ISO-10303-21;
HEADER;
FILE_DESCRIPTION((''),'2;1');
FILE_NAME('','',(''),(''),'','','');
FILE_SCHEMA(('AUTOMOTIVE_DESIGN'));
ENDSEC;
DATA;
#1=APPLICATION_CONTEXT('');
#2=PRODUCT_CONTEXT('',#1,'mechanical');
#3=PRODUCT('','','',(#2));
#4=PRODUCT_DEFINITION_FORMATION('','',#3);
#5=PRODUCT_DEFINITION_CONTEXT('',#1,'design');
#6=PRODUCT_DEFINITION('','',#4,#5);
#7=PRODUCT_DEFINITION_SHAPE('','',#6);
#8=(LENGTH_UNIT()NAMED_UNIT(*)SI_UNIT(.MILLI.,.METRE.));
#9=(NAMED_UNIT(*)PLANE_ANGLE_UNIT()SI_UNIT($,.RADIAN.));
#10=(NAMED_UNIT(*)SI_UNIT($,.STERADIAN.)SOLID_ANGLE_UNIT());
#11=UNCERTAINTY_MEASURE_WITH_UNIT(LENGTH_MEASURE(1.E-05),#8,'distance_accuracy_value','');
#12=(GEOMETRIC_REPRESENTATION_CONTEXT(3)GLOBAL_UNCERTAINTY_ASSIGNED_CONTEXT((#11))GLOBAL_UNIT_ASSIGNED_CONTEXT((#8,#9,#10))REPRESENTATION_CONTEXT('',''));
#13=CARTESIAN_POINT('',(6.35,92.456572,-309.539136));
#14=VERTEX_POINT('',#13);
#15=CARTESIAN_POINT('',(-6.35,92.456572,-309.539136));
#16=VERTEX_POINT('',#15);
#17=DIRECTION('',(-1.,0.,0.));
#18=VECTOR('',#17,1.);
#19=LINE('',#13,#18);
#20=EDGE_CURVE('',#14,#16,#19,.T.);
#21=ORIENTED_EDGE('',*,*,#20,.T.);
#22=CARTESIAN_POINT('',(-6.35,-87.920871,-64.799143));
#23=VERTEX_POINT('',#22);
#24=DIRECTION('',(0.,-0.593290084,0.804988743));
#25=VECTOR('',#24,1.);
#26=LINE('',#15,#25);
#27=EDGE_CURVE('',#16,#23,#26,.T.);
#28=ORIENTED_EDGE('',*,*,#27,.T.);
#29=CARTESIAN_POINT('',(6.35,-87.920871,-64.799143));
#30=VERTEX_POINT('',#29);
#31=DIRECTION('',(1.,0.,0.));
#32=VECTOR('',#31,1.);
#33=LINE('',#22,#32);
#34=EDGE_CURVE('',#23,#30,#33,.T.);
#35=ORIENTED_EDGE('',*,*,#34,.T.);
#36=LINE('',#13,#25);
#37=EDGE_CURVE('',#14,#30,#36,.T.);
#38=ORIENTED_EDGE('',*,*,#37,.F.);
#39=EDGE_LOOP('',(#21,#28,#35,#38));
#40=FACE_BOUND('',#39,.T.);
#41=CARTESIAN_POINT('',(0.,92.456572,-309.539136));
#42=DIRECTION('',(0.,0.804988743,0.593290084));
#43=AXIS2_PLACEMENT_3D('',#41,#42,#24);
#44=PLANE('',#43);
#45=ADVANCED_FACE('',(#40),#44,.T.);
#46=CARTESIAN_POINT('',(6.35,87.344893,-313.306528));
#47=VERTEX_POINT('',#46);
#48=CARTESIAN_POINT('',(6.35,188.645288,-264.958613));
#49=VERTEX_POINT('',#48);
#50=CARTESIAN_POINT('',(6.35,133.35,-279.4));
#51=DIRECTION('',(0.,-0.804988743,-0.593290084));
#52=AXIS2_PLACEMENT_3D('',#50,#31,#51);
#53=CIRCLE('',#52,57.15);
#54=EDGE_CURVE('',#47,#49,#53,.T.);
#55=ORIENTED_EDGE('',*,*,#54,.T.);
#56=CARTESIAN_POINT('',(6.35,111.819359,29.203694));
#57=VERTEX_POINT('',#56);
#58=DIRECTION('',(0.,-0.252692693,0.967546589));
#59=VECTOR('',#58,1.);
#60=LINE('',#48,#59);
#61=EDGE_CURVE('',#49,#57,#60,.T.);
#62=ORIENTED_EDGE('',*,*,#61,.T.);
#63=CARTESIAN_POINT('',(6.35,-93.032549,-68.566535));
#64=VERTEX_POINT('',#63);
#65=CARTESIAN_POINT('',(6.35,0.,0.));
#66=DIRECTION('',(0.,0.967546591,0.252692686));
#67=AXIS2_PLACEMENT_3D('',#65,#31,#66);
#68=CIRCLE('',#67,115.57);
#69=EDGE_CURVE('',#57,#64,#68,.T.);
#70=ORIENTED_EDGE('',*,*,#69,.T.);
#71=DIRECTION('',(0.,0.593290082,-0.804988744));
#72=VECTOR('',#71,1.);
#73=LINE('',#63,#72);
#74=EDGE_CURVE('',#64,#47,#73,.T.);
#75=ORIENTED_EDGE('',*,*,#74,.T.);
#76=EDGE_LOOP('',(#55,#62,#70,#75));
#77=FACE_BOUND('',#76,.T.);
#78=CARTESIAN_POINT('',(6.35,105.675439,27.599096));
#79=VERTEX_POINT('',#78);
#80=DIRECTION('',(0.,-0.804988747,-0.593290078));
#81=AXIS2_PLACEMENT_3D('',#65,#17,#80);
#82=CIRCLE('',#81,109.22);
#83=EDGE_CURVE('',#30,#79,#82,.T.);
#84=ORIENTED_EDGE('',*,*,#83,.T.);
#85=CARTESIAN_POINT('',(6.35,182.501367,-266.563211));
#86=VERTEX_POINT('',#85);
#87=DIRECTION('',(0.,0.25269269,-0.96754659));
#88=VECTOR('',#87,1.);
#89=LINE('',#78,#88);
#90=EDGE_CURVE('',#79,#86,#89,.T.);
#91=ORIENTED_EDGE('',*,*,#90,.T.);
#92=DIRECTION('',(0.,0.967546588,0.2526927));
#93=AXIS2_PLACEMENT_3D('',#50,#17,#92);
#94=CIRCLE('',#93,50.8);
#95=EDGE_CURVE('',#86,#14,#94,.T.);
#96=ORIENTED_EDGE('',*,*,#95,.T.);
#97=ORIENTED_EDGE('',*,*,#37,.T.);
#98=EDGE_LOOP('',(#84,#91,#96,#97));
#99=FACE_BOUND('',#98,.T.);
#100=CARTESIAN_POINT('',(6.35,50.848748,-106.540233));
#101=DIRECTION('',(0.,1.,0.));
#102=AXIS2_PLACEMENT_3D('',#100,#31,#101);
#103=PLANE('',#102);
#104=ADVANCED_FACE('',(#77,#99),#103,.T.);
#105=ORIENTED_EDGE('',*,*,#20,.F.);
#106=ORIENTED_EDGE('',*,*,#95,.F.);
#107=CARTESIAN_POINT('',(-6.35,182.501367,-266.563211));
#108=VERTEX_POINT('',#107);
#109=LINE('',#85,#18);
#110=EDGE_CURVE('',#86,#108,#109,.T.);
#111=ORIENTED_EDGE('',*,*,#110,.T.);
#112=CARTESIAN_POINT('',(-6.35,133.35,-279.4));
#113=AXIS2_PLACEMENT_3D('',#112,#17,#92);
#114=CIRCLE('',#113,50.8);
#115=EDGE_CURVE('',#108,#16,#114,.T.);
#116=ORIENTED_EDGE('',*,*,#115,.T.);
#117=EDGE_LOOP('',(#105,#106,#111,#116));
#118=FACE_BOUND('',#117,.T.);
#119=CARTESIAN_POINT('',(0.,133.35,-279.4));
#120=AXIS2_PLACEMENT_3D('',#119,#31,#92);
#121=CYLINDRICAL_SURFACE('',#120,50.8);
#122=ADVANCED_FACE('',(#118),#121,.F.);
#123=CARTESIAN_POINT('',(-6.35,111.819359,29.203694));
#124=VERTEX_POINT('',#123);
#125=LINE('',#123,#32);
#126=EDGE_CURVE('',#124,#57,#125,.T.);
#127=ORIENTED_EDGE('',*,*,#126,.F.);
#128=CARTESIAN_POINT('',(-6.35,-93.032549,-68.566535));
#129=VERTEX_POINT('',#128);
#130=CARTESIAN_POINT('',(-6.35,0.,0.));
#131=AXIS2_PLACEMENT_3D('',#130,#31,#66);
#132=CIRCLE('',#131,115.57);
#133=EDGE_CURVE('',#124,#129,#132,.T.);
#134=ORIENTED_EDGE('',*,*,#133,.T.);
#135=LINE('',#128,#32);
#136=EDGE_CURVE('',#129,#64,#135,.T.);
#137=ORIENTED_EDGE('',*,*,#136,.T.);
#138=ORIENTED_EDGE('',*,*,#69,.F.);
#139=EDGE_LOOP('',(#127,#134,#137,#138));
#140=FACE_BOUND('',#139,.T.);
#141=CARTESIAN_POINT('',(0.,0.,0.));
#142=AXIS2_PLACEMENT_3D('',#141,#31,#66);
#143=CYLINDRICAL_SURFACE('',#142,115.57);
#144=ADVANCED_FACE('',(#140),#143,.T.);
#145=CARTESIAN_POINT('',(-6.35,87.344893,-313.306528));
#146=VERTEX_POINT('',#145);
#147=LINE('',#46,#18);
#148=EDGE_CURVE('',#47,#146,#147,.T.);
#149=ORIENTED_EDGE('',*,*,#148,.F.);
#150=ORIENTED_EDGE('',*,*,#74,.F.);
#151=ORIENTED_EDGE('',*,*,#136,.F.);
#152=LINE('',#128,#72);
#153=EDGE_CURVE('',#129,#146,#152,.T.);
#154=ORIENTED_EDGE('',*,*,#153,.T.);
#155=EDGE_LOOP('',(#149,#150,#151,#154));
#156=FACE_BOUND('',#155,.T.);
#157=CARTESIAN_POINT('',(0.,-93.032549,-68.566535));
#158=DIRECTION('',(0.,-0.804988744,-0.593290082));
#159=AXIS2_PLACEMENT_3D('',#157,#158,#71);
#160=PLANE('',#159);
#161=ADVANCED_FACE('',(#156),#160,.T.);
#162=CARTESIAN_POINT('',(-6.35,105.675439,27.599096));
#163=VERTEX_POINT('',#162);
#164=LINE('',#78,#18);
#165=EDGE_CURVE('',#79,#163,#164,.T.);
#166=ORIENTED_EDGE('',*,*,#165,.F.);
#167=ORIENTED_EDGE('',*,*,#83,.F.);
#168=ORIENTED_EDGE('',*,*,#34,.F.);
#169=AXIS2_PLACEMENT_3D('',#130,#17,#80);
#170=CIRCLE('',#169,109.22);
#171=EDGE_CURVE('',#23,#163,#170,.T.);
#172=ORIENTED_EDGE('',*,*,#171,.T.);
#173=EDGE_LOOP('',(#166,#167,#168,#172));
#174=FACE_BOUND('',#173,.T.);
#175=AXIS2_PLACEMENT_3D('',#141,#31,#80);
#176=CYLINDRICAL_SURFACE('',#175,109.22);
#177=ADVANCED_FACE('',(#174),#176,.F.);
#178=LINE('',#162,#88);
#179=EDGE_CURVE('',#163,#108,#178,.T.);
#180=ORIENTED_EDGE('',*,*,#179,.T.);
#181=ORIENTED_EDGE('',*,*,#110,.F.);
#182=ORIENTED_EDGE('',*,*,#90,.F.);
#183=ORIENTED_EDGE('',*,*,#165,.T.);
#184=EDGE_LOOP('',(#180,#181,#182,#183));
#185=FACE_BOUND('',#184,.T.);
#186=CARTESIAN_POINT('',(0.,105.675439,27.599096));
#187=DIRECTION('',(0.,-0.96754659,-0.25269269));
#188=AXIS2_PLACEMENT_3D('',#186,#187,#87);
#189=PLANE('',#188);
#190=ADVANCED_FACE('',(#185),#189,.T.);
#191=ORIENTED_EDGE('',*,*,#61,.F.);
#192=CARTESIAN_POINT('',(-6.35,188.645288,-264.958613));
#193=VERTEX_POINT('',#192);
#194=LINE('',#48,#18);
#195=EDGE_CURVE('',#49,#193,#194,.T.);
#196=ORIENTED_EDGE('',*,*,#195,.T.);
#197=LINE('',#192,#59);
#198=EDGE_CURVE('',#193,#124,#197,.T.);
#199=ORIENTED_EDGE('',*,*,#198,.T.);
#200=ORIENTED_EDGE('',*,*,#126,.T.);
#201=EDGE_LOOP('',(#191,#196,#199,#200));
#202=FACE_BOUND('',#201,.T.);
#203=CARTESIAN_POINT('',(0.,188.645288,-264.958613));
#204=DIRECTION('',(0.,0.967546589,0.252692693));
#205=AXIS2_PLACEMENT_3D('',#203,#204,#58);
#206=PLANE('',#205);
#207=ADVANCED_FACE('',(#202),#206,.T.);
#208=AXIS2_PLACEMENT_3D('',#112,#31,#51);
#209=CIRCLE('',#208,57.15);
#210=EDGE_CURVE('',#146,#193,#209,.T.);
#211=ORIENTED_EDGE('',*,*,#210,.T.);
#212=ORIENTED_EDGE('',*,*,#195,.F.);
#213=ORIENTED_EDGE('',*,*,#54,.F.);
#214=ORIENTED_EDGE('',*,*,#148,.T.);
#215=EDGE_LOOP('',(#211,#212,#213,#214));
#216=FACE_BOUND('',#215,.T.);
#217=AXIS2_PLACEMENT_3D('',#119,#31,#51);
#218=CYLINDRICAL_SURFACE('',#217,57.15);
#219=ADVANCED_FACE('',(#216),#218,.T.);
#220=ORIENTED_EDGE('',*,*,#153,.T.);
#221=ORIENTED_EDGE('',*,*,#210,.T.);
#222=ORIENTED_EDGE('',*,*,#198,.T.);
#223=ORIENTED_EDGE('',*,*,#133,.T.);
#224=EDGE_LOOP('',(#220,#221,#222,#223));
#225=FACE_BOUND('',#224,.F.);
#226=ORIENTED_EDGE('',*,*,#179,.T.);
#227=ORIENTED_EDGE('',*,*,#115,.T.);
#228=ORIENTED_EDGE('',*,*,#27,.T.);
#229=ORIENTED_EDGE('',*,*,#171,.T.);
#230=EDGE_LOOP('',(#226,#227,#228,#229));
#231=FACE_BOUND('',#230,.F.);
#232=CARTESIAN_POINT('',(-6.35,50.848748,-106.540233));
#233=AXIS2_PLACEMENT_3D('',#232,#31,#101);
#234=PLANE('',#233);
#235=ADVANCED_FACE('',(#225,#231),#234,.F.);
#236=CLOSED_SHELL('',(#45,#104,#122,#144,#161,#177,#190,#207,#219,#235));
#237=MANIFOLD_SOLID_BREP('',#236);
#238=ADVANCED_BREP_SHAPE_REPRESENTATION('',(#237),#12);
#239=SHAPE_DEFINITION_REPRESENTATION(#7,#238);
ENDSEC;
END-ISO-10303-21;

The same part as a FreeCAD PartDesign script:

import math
import FreeCAD as App
import Part
import Sketcher
from FreeCAD import Vector
Q = App.Units.Quantity

doc = App.newDocument("Part")
body = doc.addObject("PartDesign::Body", "Body")

# Sketch on YZ plane
sketch1 = body.newObject("Sketcher::SketchObject", "Sketch")
sketch1.AttachmentSupport = (doc.getObject("YZ_Plane"), [""])
sketch1.MapMode = "FlatFace"
sketch1.addGeometry(Part.LineSegment(Vector(189, -265, 0), Vector(112, 29, 0)), False)
sketch1.addGeometry(Part.ArcOfCircle(Part.Circle(Vector(0, 0, 0), Vector(0, 0, 1), 116), math.radians(15), math.radians(216)), False)
sketch1.addGeometry(Part.LineSegment(Vector(-93, -69, 0), Vector(87, -313, 0)), False)
sketch1.addGeometry(Part.ArcOfCircle(Part.Circle(Vector(133, -279, 0), Vector(0, 0, 1), 57), math.radians(-144), math.radians(15)), False)
sketch1.addGeometry(Part.LineSegment(Vector(92, -310, 0), Vector(-88, -65, 0)), False)
sketch1.addGeometry(Part.ArcOfCircle(Part.Circle(Vector(0, 0, 0), Vector(0, 0, 1), 109), math.radians(15), math.radians(216)), False)
sketch1.addGeometry(Part.LineSegment(Vector(106, 28, 0), Vector(183, -267, 0)), False)
sketch1.addGeometry(Part.ArcOfCircle(Part.Circle(Vector(133, -279, 0), Vector(0, 0, 1), 51), math.radians(-144), math.radians(15)), False)
sketch1.addConstraint(Sketcher.Constraint("Tangent", 0, 2, 1, 1))
sketch1.addConstraint(Sketcher.Constraint("Tangent", 1, 2, 2, 1))
sketch1.addConstraint(Sketcher.Constraint("Tangent", 2, 2, 3, 1))
sketch1.addConstraint(Sketcher.Constraint("Tangent", 3, 2, 0, 1))
sketch1.addConstraint(Sketcher.Constraint("Tangent", 4, 2, 5, 2))
sketch1.addConstraint(Sketcher.Constraint("Tangent", 5, 1, 6, 1))
sketch1.addConstraint(Sketcher.Constraint("Tangent", 6, 2, 7, 2))
sketch1.addConstraint(Sketcher.Constraint("Tangent", 7, 1, 4, 1))
sketch1.addConstraint(Sketcher.Constraint("Coincident", 1, 3, -1, 1))
sketch1.addConstraint(Sketcher.Constraint("Coincident", 5, 3, -1, 1))
sketch1.addConstraint(Sketcher.Constraint("Coincident", 7, 3, 3, 3))
sketch1.addConstraint(Sketcher.Constraint("Parallel", 2, 4))
sketch1.addConstraint(Sketcher.Constraint("Radius", 7, Q("2 in")))
sketch1.addConstraint(Sketcher.Constraint("Radius", 5, Q("4.3 in")))
sketch1.addConstraint(Sketcher.Constraint("Radius", 1, Q("4.55 in")))
sketch1.addConstraint(Sketcher.Constraint("DistanceY", 3, 3, -1, 1, Q("11 in")))
sketch1.addConstraint(Sketcher.Constraint("DistanceX", -1, 1, 3, 3, Q("5.25 in")))
pad1 = body.newObject("PartDesign::Pad", "Pad")
pad1.Profile = sketch1
pad1.Length = Q("0.5 in")
pad1.Midplane = True

doc.recompute()
